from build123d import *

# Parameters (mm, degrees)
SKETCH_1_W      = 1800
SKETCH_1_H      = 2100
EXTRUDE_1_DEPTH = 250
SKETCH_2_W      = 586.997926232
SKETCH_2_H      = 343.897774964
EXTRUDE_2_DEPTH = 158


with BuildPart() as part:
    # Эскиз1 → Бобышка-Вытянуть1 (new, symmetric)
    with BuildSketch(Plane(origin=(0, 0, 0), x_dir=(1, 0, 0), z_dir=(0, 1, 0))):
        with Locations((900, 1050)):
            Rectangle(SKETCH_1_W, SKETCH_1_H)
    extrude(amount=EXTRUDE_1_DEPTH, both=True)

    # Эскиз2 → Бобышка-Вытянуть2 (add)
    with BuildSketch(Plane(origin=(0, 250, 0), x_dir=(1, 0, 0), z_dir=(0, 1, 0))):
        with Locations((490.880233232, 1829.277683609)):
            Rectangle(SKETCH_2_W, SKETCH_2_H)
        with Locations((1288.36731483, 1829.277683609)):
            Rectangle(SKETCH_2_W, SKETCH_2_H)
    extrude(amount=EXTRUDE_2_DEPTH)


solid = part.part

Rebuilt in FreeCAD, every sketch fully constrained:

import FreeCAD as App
import Part
import Sketcher
from FreeCAD import Vector
Q = App.Units.Quantity

doc = App.newDocument("Part")
body = doc.addObject("PartDesign::Body", "Body")

# Sketch on XZ plane
sketch1 = body.newObject("Sketcher::SketchObject", "Sketch")
sketch1.AttachmentSupport = (doc.getObject("XZ_Plane"), [""])
sketch1.MapMode = "FlatFace"
sketch1.addGeometry(Part.LineSegment(Vector(0, -2100, 0), Vector(0, 0, 0)), False)
sketch1.addGeometry(Part.LineSegment(Vector(0, 0, 0), Vector(1800, 0, 0)), False)
sketch1.addGeometry(Part.LineSegment(Vector(1800, 0, 0), Vector(1800, -2100, 0)), False)
sketch1.addGeometry(Part.LineSegment(Vector(1800, -2100, 0), Vector(0, -2100, 0)), False)
sketch1.addConstraint(Sketcher.Constraint("Coincident", 0, 2, 1, 1))
sketch1.addConstraint(Sketcher.Constraint("Coincident", 1, 2, 2, 1))
sketch1.addConstraint(Sketcher.Constraint("Coincident", 2, 2, 3, 1))
sketch1.addConstraint(Sketcher.Constraint("Coincident", 3, 2, 0, 1))
sketch1.addConstraint(Sketcher.Constraint("Vertical", 0))
sketch1.addConstraint(Sketcher.Constraint("Horizontal", 1))
sketch1.addConstraint(Sketcher.Constraint("Vertical", 2))
sketch1.addConstraint(Sketcher.Constraint("Horizontal", 3))
sketch1.addConstraint(Sketcher.Constraint("Coincident", 0, 2, -1, 1))
sketch1.addConstraint(Sketcher.Constraint("DistanceX", 1, 1, 1, 2, Q("1800 mm")))
sketch1.addConstraint(Sketcher.Constraint("DistanceY", 0, 1, 0, 2, Q("2100 mm")))
pad1 = body.newObject("PartDesign::Pad", "Pad")
pad1.Profile = sketch1
pad1.Length = 500
pad1.Midplane = True

# Sketch on XZ plane
sketch2 = body.newObject("Sketcher::SketchObject", "Sketch001")
sketch2.AttachmentSupport = (doc.getObject("XZ_Plane"), [""])
sketch2.MapMode = "FlatFace"
sketch2.AttachmentOffset = App.Placement(Vector(0, 0, -250), App.Rotation())
sketch2.addGeometry(Part.LineSegment(Vector(197.38127, -2001.226571, 0), Vector(197.38127, -1657.328796, 0)), False)
sketch2.addGeometry(Part.LineSegment(Vector(197.38127, -1657.328796, 0), Vector(784.379196, -1657.328796, 0)), False)
sketch2.addGeometry(Part.LineSegment(Vector(784.379196, -1657.328796, 0), Vector(784.379196, -2001.226571, 0)), False)
sketch2.addGeometry(Part.LineSegment(Vector(784.379196, -2001.226571, 0), Vector(197.38127, -2001.226571, 0)), False)
sketch2.addGeometry(Part.LineSegment(Vector(994.868352, -2001.226571, 0), Vector(994.868352, -1657.328796, 0)), False)
sketch2.addGeometry(Part.LineSegment(Vector(994.868352, -1657.328796, 0), Vector(1581.866278, -1657.328796, 0)), False)
sketch2.addGeometry(Part.LineSegment(Vector(1581.866278, -1657.328796, 0), Vector(1581.866278, -2001.226571, 0)), False)
sketch2.addGeometry(Part.LineSegment(Vector(1581.866278, -2001.226571, 0), Vector(994.868352, -2001.226571, 0)), False)
sketch2.addConstraint(Sketcher.Constraint("Coincident", 0, 2, 1, 1))
sketch2.addConstraint(Sketcher.Constraint("Coincident", 1, 2, 2, 1))
sketch2.addConstraint(Sketcher.Constraint("Coincident", 2, 2, 3, 1))
sketch2.addConstraint(Sketcher.Constraint("Coincident", 3, 2, 0, 1))
sketch2.addConstraint(Sketcher.Constraint("Coincident", 4, 2, 5, 1))
sketch2.addConstraint(Sketcher.Constraint("Coincident", 5, 2, 6, 1))
sketch2.addConstraint(Sketcher.Constraint("Coincident", 6, 2, 7, 1))
sketch2.addConstraint(Sketcher.Constraint("Coincident", 7, 2, 4, 1))
sketch2.addConstraint(Sketcher.Constraint("Vertical", 0))
sketch2.addConstraint(Sketcher.Constraint("Horizontal", 1))
sketch2.addConstraint(Sketcher.Constraint("Vertical", 2))
sketch2.addConstraint(Sketcher.Constraint("Horizontal", 3))
sketch2.addConstraint(Sketcher.Constraint("Vertical", 4))
sketch2.addConstraint(Sketcher.Constraint("Horizontal", 5))
sketch2.addConstraint(Sketcher.Constraint("Vertical", 6))
sketch2.addConstraint(Sketcher.Constraint("Horizontal", 7))
sketch2.addConstraint(Sketcher.Constraint("Horizontal", 1, 2, 4, 2))
sketch2.addConstraint(Sketcher.Constraint("Horizontal", 3, 2, 6, 2))
sketch2.addConstraint(Sketcher.Constraint("Equal", 3, 5))
sketch2.addConstraint(Sketcher.Constraint("DistanceX", 1, 1, 1, 2, Q("586.997926 mm")))
sketch2.addConstraint(Sketcher.Constraint("DistanceY", 0, 1, 0, 2, Q("343.897775 mm")))
sketch2.addConstraint(Sketcher.Constraint("DistanceX", -1, 1, 0, 2, Q("197.38127 mm")))
sketch2.addConstraint(Sketcher.Constraint("DistanceY", 2, 2, -1, 1, Q("2001.226571 mm")))
sketch2.addConstraint(Sketcher.Constraint("DistanceX", -1, 1, 4, 2, Q("994.868352 mm")))
pad2 = body.newObject("PartDesign::Pad", "Pad001")
pad2.Profile = sketch2
pad2.Length = 158
pad2.Reversed = True

doc.recompute()
